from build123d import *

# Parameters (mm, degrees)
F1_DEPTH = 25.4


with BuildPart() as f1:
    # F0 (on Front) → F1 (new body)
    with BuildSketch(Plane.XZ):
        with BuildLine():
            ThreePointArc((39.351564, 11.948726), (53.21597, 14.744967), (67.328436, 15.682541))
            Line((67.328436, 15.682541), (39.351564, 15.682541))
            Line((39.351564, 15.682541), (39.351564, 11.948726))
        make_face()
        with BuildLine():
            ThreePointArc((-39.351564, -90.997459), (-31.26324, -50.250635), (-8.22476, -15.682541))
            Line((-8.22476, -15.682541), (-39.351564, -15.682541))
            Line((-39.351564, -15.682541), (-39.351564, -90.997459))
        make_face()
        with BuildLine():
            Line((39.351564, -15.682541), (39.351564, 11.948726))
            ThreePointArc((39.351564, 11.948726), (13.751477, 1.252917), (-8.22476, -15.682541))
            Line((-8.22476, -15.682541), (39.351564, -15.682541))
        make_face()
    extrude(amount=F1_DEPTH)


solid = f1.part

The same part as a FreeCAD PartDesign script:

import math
import FreeCAD as App
import Part
import Sketcher
Q = App.Units.Quantity

doc = App.newDocument("Part")
body = doc.addObject("PartDesign::Body", "Body")
body.AllowCompound = True

# Sketch on XZ plane
sketch1 = doc.addObject("Sketcher::SketchObject", "Sketch")
body.addObject(sketch1)
sketch1.AttachmentSupport = (doc.XZ_Plane, [""])
sketch1.MapMode = "FlatFace"
sketch1.addGeometry([
    Part.ArcOfCircle(Part.Circle(App.Vector(67.3, -91, 0), App.Vector(0, 0, 1), 106.7), math.radians(90), math.radians(105.2)),  # 0
    Part.LineSegment(App.Vector(67.3, 15.7, 0), App.Vector(39.4, 15.7, 0)),  # 1
    Part.LineSegment(App.Vector(39.4, 15.7, 0), App.Vector(39.4, 11.9, 0)),  # 2
    Part.ArcOfCircle(Part.Circle(App.Vector(67.3, -91, 0), App.Vector(0, 0, 1), 106.7), math.radians(135), math.radians(180)),  # 3
    Part.LineSegment(App.Vector(-8.2, -15.7, 0), App.Vector(-39.4, -15.7, 0)),  # 4
    Part.LineSegment(App.Vector(-39.4, -15.7, 0), App.Vector(-39.4, -91, 0)),  # 5
    Part.LineSegment(App.Vector(39.4, -15.7, 0), App.Vector(39.4, 11.9, 0)),  # 6
    Part.ArcOfCircle(Part.Circle(App.Vector(67.3, -91, 0), App.Vector(0, 0, 1), 106.7), math.radians(105), math.radians(135)),  # 7
    Part.LineSegment(App.Vector(-8.2, -15.7, 0), App.Vector(39.4, -15.7, 0)),  # 8
], False)
sketch1.addConstraint([
    Sketcher.Constraint("Tangent", 0, 1, 1, 1),
    Sketcher.Constraint("Coincident", 1, 2, 2, 1),
    Sketcher.Constraint("Coincident", 2, 2, 0, 2),
    Sketcher.Constraint("Coincident", 3, 1, 4, 1),
    Sketcher.Constraint("Coincident", 4, 2, 5, 1),
    Sketcher.Constraint("Tangent", 5, 2, 3, 2),
    Sketcher.Constraint("Coincident", 6, 2, 7, 1),
    Sketcher.Constraint("Coincident", 7, 2, 8, 1),
    Sketcher.Constraint("Coincident", 8, 2, 6, 1),
    Sketcher.Constraint("Horizontal", 1),
    Sketcher.Constraint("Vertical", 2),
    Sketcher.Constraint("Horizontal", 4),
    Sketcher.Constraint("Vertical", 5),
    Sketcher.Constraint("Vertical", 6),
    Sketcher.Constraint("Horizontal", 8),
    Sketcher.Constraint("Coincident", 6, 2, 2, 2),
    Sketcher.Constraint("Coincident", 7, 2, 3, 1),
    Sketcher.Constraint("Symmetric", 1, 2, 4, 2, -1, 1),
    Sketcher.Constraint("DistanceY", 3, 3, 0, 1, Q("4.2000001 in")),
    Sketcher.Constraint("DistanceX", 4, 2, 0, 1, Q("4.2 in")),
    Sketcher.Constraint("DistanceX", 4, 2, 7, 3, Q("4.1999998 in")),
    Sketcher.Constraint("Radius", 7, Q("106.67999 mm")),
    Sketcher.Constraint("DistanceY", 0, 3, 2, 2, Q("4.0530001 in")),
    Sketcher.Constraint("Radius", 0, Q("106.680018 mm")),
    Sketcher.Constraint("DistanceY", 5, 2, 5, 1, Q("75.314918 mm")),
])
pad1 = doc.addObject("PartDesign::Pad", "Pad")
body.addObject(pad1)
pad1.Profile = sketch1
pad1.Length = Q("1 in")

doc.recompute()
